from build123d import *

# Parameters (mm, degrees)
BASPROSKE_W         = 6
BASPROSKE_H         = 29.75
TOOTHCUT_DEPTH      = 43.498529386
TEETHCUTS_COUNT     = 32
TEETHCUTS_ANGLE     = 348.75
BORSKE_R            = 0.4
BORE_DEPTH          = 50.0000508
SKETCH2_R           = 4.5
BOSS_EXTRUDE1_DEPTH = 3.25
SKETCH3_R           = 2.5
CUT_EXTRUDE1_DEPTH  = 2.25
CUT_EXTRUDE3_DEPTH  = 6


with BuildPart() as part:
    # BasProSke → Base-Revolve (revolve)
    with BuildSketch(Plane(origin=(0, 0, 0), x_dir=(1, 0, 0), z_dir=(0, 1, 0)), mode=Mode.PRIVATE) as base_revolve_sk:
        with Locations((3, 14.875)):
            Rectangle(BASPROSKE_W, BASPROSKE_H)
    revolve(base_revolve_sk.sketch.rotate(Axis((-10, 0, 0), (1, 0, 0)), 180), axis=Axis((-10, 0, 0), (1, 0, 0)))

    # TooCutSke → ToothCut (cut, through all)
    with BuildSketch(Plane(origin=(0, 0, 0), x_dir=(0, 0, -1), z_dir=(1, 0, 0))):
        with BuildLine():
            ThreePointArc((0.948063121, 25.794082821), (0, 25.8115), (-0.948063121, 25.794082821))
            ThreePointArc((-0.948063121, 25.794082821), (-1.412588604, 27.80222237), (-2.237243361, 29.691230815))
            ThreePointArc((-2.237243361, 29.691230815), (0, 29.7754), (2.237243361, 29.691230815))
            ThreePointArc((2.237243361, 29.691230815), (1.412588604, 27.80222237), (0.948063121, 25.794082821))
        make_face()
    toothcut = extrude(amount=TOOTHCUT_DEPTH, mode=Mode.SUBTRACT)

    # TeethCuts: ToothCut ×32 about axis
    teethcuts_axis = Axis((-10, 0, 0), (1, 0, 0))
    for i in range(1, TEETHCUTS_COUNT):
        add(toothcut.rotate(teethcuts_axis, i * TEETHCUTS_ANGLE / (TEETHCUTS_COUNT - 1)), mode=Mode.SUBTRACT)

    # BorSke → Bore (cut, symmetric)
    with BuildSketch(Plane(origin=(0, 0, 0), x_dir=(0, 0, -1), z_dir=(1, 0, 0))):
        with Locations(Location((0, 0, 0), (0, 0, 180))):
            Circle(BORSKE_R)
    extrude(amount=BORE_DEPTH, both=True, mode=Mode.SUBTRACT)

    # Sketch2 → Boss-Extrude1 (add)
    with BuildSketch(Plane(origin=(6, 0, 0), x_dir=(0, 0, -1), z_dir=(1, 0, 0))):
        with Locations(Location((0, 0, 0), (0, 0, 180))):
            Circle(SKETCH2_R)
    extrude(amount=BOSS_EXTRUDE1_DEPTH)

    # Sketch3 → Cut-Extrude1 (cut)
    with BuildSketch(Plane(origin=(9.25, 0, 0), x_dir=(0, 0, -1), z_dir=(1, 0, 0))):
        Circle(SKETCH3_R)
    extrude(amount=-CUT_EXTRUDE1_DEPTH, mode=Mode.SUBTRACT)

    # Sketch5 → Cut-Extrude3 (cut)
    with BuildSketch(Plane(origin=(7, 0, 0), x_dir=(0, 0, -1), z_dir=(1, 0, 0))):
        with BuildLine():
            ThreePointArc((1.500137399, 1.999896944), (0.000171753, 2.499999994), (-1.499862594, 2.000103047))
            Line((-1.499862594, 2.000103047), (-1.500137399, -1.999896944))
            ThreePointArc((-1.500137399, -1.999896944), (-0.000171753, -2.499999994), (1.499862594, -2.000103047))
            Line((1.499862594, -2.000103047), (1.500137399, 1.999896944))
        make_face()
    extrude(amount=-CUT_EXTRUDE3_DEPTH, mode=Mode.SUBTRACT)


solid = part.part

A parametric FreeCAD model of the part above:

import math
import FreeCAD as App
import Part
import Sketcher
from FreeCAD import Vector
Q = App.Units.Quantity


def add_polygon(sketch, points):
    """Adds a closed chain of lines whose ends are joined by coincident constraints."""
    first, n = sketch.GeometryCount, len(points)
    for a, b in zip(points, points[1:] + points[:1]):
        sketch.addGeometry(Part.LineSegment(App.Vector(*a, 0), App.Vector(*b, 0)), False)
    for i in range(n):
        sketch.addConstraint(Sketcher.Constraint("Coincident", first + i, 2, first + (i + 1) % n, 1))

doc = App.newDocument("Part")
body = doc.addObject("PartDesign::Body", "Body")

# Sketch on XZ plane
sketch1 = body.newObject("Sketcher::SketchObject", "Sketch")
sketch1.AttachmentSupport = (doc.getObject("XZ_Plane"), [""])
sketch1.MapMode = "FlatFace"
add_polygon(sketch1, [(0, -30), (0, 0), (6, 0), (6, -30)])  # lines 0-3
sketch1.addConstraint([
    Sketcher.Constraint("Vertical", 0),
    Sketcher.Constraint("Horizontal", 1),
    Sketcher.Constraint("Vertical", 2),
    Sketcher.Constraint("Horizontal", 3),
    Sketcher.Constraint("Coincident", 0, 2, -1, 1),
    Sketcher.Constraint("DistanceX", 1, 1, 1, 2, Q("6 mm")),
    Sketcher.Constraint("DistanceY", 0, 1, 0, 2, Q("29.75 mm")),
])
revolution = body.newObject("PartDesign::Revolution", "Revolution")
revolution.Profile = sketch1
revolution.ReferenceAxis = (sketch1, ["H_Axis"])
revolution.Angle = 360

# Sketch on YZ plane
sketch2 = body.newObject("Sketcher::SketchObject", "Sketch001")
sketch2.AttachmentSupport = (doc.getObject("YZ_Plane"), [""])
sketch2.MapMode = "FlatFace"
sketch2.addGeometry([
    Part.ArcOfCircle(Part.Circle(Vector(0, 0, 0), Vector(0, 0, 1), 25.8), math.radians(-2.1), math.radians(2.1)),
    Part.ArcOfCircle(Part.Circle(Vector(24.3, -12, 0), Vector(0, 0, 1), 11.2), math.radians(61), math.radians(82)),
    Part.ArcOfCircle(Part.Circle(Vector(0, 0, 0), Vector(0, 0, 1), 29.8), math.radians(-4.31), math.radians(4.31)),
    Part.ArcOfCircle(Part.Circle(Vector(24.3, 12, 0), Vector(0, 0, 1), 11.2), math.radians(-82), math.radians(-61)),
], False)
sketch2.addConstraint([
    Sketcher.Constraint("Coincident", 0, 1, 1, 2),
    Sketcher.Constraint("Coincident", 1, 1, 2, 1),
    Sketcher.Constraint("Coincident", 2, 2, 3, 2),
    Sketcher.Constraint("Coincident", 3, 1, 0, 2),
    Sketcher.Constraint("Coincident", 0, 3, -1, 1),
    Sketcher.Constraint("Coincident", 2, 3, -1, 1),
    Sketcher.Constraint("Equal", 1, 3),
    Sketcher.Constraint("Symmetric", 1, 3, 3, 3, -1),
    Sketcher.Constraint("Radius", 1, Q("11.2 mm")),
    Sketcher.Constraint("Radius", 0, Q("25.8115 mm")),
    Sketcher.Constraint("Radius", 2, Q("29.7754 mm")),
    Sketcher.Constraint("DistanceX", -1, 1, 1, 1, Q("29.691231 mm")),
    Sketcher.Constraint("DistanceY", 1, 3, 0, 1, Q("11.097829 mm")),
])
pocket1 = body.newObject("PartDesign::Pocket", "Pocket")
pocket1.Profile = sketch2
pocket1.Type = "ThroughAll"
pocket1.Reversed = True
doc.recompute()

polarpattern = body.newObject("PartDesign::PolarPattern", "PolarPattern")
polarpattern.Originals = [pocket1]
polarpattern.Axis = (doc.getObject("X_Axis"), [""])
polarpattern.Angle = 360
polarpattern.Occurrences = 32
body.Tip = polarpattern

# Sketch on YZ plane
sketch3 = body.newObject("Sketcher::SketchObject", "Sketch002")
sketch3.AttachmentSupport = (doc.getObject("YZ_Plane"), [""])
sketch3.MapMode = "FlatFace"
sketch3.addGeometry(Part.Circle(Vector(0, 0, 0), Vector(0, 0, 1), 0.4), False)
sketch3.addConstraint([
    Sketcher.Constraint("Coincident", 0, 3, -1, 1),
    Sketcher.Constraint("Diameter", 0, Q("0.8 mm")),
])
pocket2 = body.newObject("PartDesign::Pocket", "Pocket001")
pocket2.Profile = sketch3
pocket2.Length = 100.000102
pocket2.Midplane = True

# Sketch on YZ plane
sketch4 = body.newObject("Sketcher::SketchObject", "Sketch003")
sketch4.AttachmentSupport = (doc.getObject("YZ_Plane"), [""])
sketch4.MapMode = "FlatFace"
sketch4.AttachmentOffset = App.Placement(Vector(0, 0, 6), App.Rotation())
sketch4.addGeometry(Part.Circle(Vector(0, 0, 0), Vector(0, 0, 1), 4.5), False)
sketch4.addConstraint([
    Sketcher.Constraint("Coincident", 0, 3, -1, 1),
    Sketcher.Constraint("Diameter", 0, Q("9 mm")),
])
pad1 = body.newObject("PartDesign::Pad", "Pad")
pad1.Profile = sketch4
pad1.Length = 3.25

# Sketch on YZ plane
sketch5 = body.newObject("Sketcher::SketchObject", "Sketch004")
sketch5.AttachmentSupport = (doc.getObject("YZ_Plane"), [""])
sketch5.MapMode = "FlatFace"
sketch5.AttachmentOffset = App.Placement(Vector(0, 0, 9.25), App.Rotation())
sketch5.addGeometry(Part.Circle(Vector(0, 0, 0), Vector(0, 0, 1), 2.5), False)
sketch5.addConstraint([
    Sketcher.Constraint("Coincident", 0, 3, -1, 1),
    Sketcher.Constraint("Diameter", 0, Q("5 mm")),
])
pocket3 = body.newObject("PartDesign::Pocket", "Pocket002")
pocket3.Profile = sketch5
pocket3.Length = 2.25

# Sketch on YZ plane
sketch6 = body.newObject("Sketcher::SketchObject", "Sketch005")
sketch6.AttachmentSupport = (doc.getObject("YZ_Plane"), [""])
sketch6.MapMode = "FlatFace"
sketch6.AttachmentOffset = App.Placement(Vector(0, 0, 7), App.Rotation())
sketch6.addGeometry([
    Part.ArcOfCircle(Part.Circle(Vector(0, 0, 0), Vector(0, 0, 1), 2.5), math.radians(-37), math.radians(37)),
    Part.LineSegment(Vector(2, 1.5, 0), Vector(-2, 1.5, 0)),
    Part.ArcOfCircle(Part.Circle(Vector(0, 0, 0), Vector(0, 0, 1), 2.5), math.radians(143), math.radians(217)),
    Part.LineSegment(Vector(-2, -1.5, 0), Vector(2, -1.5, 0)),
], False)
sketch6.addConstraint([
    Sketcher.Constraint("Coincident", 0, 2, 1, 1),
    Sketcher.Constraint("Coincident", 1, 2, 2, 1),
    Sketcher.Constraint("Coincident", 2, 2, 3, 1),
    Sketcher.Constraint("Coincident", 3, 2, 0, 1),
    Sketcher.Constraint("Coincident", 0, 3, -1, 1),
    Sketcher.Constraint("Coincident", 2, 3, -1, 1),
    Sketcher.Constraint("Equal", 0, 2),
    Sketcher.Constraint("Parallel", 1, 3),
    Sketcher.Constraint("Equal", 1, 3),
    Sketcher.Constraint("Radius", 0, Q("2.5 mm")),
    Sketcher.Constraint("Distance", 1, Q("4 mm")),
    Sketcher.Constraint("DistanceX", -1, 1, 0, 2, Q("2.000103 mm")),
])
pocket4 = body.newObject("PartDesign::Pocket", "Pocket003")
pocket4.Profile = sketch6
pocket4.Length = 6

doc.recompute()
